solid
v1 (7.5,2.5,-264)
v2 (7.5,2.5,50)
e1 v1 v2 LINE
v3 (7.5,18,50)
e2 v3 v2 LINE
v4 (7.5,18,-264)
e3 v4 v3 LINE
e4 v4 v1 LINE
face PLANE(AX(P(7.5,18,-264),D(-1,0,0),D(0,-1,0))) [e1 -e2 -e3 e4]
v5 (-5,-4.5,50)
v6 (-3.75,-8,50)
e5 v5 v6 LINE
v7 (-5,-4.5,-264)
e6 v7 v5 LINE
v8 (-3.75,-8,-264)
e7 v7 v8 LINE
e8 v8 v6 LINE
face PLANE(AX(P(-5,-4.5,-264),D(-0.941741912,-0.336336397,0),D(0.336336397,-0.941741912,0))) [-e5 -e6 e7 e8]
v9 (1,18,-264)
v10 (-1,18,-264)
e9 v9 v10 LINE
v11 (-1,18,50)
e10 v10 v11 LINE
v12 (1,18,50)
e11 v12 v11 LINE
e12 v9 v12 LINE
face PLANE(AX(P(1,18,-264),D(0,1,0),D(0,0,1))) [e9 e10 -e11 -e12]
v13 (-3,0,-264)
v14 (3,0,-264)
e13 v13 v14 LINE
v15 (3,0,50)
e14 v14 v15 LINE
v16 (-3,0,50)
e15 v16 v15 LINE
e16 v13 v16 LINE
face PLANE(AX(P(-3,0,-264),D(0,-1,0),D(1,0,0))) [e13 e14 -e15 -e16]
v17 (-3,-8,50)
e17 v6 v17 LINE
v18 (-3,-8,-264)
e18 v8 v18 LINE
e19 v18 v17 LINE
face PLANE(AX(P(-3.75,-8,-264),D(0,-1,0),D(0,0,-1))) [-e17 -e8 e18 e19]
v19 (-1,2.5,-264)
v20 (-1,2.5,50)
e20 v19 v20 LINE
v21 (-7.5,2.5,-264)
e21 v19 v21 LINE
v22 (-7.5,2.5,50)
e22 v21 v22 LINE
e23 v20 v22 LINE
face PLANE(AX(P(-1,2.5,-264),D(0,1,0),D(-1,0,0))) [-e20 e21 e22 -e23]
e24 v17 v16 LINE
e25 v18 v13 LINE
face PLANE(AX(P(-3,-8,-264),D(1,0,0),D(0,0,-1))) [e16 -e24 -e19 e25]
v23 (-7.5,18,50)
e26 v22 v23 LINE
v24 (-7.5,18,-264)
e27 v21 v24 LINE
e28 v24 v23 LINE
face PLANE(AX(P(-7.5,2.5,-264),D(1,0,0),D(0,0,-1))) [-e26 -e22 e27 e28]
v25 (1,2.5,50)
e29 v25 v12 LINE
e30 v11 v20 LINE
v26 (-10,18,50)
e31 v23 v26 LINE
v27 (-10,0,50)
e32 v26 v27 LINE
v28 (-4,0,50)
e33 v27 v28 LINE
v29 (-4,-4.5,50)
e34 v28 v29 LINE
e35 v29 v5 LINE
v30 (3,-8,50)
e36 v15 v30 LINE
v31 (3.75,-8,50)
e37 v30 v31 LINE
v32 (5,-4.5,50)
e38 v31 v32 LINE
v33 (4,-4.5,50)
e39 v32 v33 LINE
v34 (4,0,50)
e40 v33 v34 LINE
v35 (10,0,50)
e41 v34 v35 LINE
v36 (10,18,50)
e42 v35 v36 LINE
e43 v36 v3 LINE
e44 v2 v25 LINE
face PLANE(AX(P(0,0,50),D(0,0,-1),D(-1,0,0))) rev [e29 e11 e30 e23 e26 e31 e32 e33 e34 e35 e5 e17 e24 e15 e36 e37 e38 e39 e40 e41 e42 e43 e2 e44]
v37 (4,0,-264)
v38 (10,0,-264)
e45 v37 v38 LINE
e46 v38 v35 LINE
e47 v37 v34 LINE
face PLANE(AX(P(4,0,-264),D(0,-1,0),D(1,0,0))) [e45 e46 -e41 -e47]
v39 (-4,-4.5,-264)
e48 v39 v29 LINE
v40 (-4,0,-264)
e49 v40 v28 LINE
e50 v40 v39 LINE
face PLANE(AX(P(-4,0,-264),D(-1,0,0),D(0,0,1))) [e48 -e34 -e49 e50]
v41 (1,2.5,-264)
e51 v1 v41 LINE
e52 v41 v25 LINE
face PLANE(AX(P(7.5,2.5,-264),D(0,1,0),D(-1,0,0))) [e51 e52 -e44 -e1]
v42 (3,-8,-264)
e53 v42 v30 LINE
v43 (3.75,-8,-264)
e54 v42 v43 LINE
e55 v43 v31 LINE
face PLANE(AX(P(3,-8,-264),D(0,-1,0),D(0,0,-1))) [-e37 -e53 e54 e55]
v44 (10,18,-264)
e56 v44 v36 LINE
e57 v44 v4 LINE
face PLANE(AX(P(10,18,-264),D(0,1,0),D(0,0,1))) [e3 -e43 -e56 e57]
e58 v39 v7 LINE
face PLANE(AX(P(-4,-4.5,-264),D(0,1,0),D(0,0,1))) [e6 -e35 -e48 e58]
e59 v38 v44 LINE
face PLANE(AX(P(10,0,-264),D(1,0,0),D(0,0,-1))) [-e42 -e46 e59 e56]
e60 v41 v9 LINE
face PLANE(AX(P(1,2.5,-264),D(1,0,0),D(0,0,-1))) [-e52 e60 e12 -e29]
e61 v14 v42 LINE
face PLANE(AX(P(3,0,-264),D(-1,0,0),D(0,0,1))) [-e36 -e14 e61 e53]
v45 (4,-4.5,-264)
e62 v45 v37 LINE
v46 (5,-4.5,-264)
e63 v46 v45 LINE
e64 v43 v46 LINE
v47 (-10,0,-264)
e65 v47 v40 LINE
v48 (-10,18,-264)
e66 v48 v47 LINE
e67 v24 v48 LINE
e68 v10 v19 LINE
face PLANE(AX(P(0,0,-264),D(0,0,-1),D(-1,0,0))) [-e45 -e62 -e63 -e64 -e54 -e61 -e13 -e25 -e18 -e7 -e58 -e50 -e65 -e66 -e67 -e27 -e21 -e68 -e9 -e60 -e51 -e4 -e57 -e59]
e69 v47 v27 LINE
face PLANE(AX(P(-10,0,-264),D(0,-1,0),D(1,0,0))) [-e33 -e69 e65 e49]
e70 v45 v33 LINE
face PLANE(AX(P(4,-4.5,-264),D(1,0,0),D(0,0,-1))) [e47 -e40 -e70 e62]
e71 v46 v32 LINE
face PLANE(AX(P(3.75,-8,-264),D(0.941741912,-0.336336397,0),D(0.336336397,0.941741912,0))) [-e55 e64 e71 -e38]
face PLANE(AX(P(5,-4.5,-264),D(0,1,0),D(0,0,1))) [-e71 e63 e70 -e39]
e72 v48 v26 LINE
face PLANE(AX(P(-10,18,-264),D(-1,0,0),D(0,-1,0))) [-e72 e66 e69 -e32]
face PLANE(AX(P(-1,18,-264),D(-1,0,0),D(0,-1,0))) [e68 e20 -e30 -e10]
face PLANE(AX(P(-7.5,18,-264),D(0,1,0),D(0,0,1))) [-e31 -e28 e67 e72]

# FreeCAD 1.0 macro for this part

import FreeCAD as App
import Part
import Sketcher
from FreeCAD import Vector

doc = App.newDocument("Part")
body = doc.addObject("PartDesign::Body", "Body")

sketch1 = body.newObject("Sketcher::SketchObject", "Sketch")
sketch1.AttachmentSupport = (doc.getObject("XY_Plane"), [""])
sketch1.MapMode = "FlatFace"
sketch1.AttachmentOffset = App.Placement(Vector(0, 0, 50), App.Rotation())
sketch1.addGeometry([
    Part.LineSegment(Vector(-1, 2.5, 0), Vector(-7.5, 2.5, 0)),
    Part.LineSegment(Vector(-7.5, 2.5, 0), Vector(-7.5, 18, 0)),
    Part.LineSegment(Vector(-7.5, 18, 0), Vector(-10, 18, 0)),
    Part.LineSegment(Vector(-10, 18, 0), Vector(-10, 0, 0)),
    Part.LineSegment(Vector(-10, 0, 0), Vector(-4, 0, 0)),
    Part.LineSegment(Vector(-4, 0, 0), Vector(-4, -4.5, 0)),
    Part.LineSegment(Vector(-4, -4.5, 0), Vector(-5, -4.5, 0)),
    Part.LineSegment(Vector(-5, -4.5, 0), Vector(-3.8, -8, 0)),
    Part.LineSegment(Vector(-3.8, -8, 0), Vector(-3, -8, 0)),
    Part.LineSegment(Vector(-3, -8, 0), Vector(-3, 0, 0)),
    Part.LineSegment(Vector(-3, 0, 0), Vector(3, 0, 0)),
    Part.LineSegment(Vector(3, 0, 0), Vector(3, -8, 0)),
    Part.LineSegment(Vector(3, -8, 0), Vector(3.8, -8, 0)),
    Part.LineSegment(Vector(3.8, -8, 0), Vector(5, -4.5, 0)),
    Part.LineSegment(Vector(5, -4.5, 0), Vector(4, -4.5, 0)),
    Part.LineSegment(Vector(4, -4.5, 0), Vector(4, 0, 0)),
    Part.LineSegment(Vector(4, 0, 0), Vector(10, 0, 0)),
    Part.LineSegment(Vector(10, 0, 0), Vector(10, 18, 0)),
    Part.LineSegment(Vector(10, 18, 0), Vector(7.5, 18, 0)),
    Part.LineSegment(Vector(7.5, 18, 0), Vector(7.5, 2.5, 0)),
    Part.LineSegment(Vector(7.5, 2.5, 0), Vector(1, 2.5, 0)),
    Part.LineSegment(Vector(1, 2.5, 0), Vector(1, 18, 0)),
    Part.LineSegment(Vector(1, 18, 0), Vector(-1, 18, 0)),
    Part.LineSegment(Vector(-1, 18, 0), Vector(-1, 2.5, 0)),
], False)
sketch1.addConstraint([
    Sketcher.Constraint("Coincident", 0, 2, 1, 1),
    Sketcher.Constraint("Coincident", 1, 2, 2, 1),
    Sketcher.Constraint("Coincident", 2, 2, 3, 1),
    Sketcher.Constraint("Coincident", 3, 2, 4, 1),
    Sketcher.Constraint("Coincident", 4, 2, 5, 1),
    Sketcher.Constraint("Coincident", 5, 2, 6, 1),
    Sketcher.Constraint("Coincident", 6, 2, 7, 1),
    Sketcher.Constraint("Coincident", 7, 2, 8, 1),
    Sketcher.Constraint("Coincident", 8, 2, 9, 1),
    Sketcher.Constraint("Coincident", 9, 2, 10, 1),
    Sketcher.Constraint("Coincident", 10, 2, 11, 1),
    Sketcher.Constraint("Coincident", 11, 2, 12, 1),
    Sketcher.Constraint("Coincident", 12, 2, 13, 1),
    Sketcher.Constraint("Coincident", 13, 2, 14, 1),
    Sketcher.Constraint("Coincident", 14, 2, 15, 1),
    Sketcher.Constraint("Coincident", 15, 2, 16, 1),
    Sketcher.Constraint("Coincident", 16, 2, 17, 1),
    Sketcher.Constraint("Coincident", 17, 2, 18, 1),
    Sketcher.Constraint("Coincident", 18, 2, 19, 1),
    Sketcher.Constraint("Coincident", 19, 2, 20, 1),
    Sketcher.Constraint("Coincident", 20, 2, 21, 1),
    Sketcher.Constraint("Coincident", 21, 2, 22, 1),
    Sketcher.Constraint("Coincident", 22, 2, 23, 1),
    Sketcher.Constraint("Coincident", 23, 2, 0, 1),
    Sketcher.Constraint("Horizontal", 0),
    Sketcher.Constraint("Vertical", 1),
    Sketcher.Constraint("Horizontal", 2),
    Sketcher.Constraint("Vertical", 3),
    Sketcher.Constraint("Horizontal", 4),
    Sketcher.Constraint("Vertical", 5),
    Sketcher.Constraint("Horizontal", 6),
    Sketcher.Constraint("Horizontal", 8),
    Sketcher.Constraint("Vertical", 9),
    Sketcher.Constraint("Horizontal", 10),
    Sketcher.Constraint("Vertical", 11),
    Sketcher.Constraint("Horizontal", 12),
    Sketcher.Constraint("Horizontal", 14),
    Sketcher.Constraint("Vertical", 15),
    Sketcher.Constraint("Horizontal", 16),
    Sketcher.Constraint("Vertical", 17),
    Sketcher.Constraint("Horizontal", 18),
    Sketcher.Constraint("Vertical", 19),
    Sketcher.Constraint("Horizontal", 20),
    Sketcher.Constraint("Vertical", 21),
    Sketcher.Constraint("Horizontal", 22),
    Sketcher.Constraint("Vertical", 23),
    Sketcher.Constraint("Symmetric", 9, 2, 10, 2, -1, 1),
    Sketcher.Constraint("Symmetric", 4, 2, 15, 2, -1, 1),
    Sketcher.Constraint("Symmetric", 7, 2, 12, 2, -2),
    Sketcher.Constraint("Symmetric", 6, 2, 13, 2, -2),
    Sketcher.Constraint("Symmetric", 3, 2, 16, 2, -2),
    Sketcher.Constraint("Symmetric", 1, 2, 18, 2, -2),
    Sketcher.Constraint("Symmetric", 20, 2, 23, 2, -2),
    Sketcher.Constraint("Horizontal", 18, 2, 21, 2),
    Sketcher.Constraint("Equal", 4, 10),
    Sketcher.Constraint("DistanceX", 4, 1, 4, 2, 6.0),
    Sketcher.Constraint("DistanceX", 6, 2, 6, 1, 1.0),
    Sketcher.Constraint("DistanceX", 22, 2, 22, 1, 2.0),
    Sketcher.Constraint("DistanceY", 3, 2, 3, 1, 18.0),
    Sketcher.Constraint("DistanceY", 9, 1, 9, 2, 8.0),
    Sketcher.Constraint("DistanceX", 0, 2, 0, 1, 6.5),
    Sketcher.Constraint("DistanceX", 2, 2, 2, 1, 2.5),
    Sketcher.Constraint("DistanceY", 1, 1, 1, 2, 15.5),
    Sketcher.Constraint("DistanceY", 5, 2, 5, 1, 4.5),
    Sketcher.Constraint("DistanceX", 8, 1, 8, 2, 0.75),
])
pad1 = body.newObject("PartDesign::Pad", "Pad")
pad1.Profile = sketch1
pad1.Length = 314
pad1.Reversed = True

doc.recompute()
